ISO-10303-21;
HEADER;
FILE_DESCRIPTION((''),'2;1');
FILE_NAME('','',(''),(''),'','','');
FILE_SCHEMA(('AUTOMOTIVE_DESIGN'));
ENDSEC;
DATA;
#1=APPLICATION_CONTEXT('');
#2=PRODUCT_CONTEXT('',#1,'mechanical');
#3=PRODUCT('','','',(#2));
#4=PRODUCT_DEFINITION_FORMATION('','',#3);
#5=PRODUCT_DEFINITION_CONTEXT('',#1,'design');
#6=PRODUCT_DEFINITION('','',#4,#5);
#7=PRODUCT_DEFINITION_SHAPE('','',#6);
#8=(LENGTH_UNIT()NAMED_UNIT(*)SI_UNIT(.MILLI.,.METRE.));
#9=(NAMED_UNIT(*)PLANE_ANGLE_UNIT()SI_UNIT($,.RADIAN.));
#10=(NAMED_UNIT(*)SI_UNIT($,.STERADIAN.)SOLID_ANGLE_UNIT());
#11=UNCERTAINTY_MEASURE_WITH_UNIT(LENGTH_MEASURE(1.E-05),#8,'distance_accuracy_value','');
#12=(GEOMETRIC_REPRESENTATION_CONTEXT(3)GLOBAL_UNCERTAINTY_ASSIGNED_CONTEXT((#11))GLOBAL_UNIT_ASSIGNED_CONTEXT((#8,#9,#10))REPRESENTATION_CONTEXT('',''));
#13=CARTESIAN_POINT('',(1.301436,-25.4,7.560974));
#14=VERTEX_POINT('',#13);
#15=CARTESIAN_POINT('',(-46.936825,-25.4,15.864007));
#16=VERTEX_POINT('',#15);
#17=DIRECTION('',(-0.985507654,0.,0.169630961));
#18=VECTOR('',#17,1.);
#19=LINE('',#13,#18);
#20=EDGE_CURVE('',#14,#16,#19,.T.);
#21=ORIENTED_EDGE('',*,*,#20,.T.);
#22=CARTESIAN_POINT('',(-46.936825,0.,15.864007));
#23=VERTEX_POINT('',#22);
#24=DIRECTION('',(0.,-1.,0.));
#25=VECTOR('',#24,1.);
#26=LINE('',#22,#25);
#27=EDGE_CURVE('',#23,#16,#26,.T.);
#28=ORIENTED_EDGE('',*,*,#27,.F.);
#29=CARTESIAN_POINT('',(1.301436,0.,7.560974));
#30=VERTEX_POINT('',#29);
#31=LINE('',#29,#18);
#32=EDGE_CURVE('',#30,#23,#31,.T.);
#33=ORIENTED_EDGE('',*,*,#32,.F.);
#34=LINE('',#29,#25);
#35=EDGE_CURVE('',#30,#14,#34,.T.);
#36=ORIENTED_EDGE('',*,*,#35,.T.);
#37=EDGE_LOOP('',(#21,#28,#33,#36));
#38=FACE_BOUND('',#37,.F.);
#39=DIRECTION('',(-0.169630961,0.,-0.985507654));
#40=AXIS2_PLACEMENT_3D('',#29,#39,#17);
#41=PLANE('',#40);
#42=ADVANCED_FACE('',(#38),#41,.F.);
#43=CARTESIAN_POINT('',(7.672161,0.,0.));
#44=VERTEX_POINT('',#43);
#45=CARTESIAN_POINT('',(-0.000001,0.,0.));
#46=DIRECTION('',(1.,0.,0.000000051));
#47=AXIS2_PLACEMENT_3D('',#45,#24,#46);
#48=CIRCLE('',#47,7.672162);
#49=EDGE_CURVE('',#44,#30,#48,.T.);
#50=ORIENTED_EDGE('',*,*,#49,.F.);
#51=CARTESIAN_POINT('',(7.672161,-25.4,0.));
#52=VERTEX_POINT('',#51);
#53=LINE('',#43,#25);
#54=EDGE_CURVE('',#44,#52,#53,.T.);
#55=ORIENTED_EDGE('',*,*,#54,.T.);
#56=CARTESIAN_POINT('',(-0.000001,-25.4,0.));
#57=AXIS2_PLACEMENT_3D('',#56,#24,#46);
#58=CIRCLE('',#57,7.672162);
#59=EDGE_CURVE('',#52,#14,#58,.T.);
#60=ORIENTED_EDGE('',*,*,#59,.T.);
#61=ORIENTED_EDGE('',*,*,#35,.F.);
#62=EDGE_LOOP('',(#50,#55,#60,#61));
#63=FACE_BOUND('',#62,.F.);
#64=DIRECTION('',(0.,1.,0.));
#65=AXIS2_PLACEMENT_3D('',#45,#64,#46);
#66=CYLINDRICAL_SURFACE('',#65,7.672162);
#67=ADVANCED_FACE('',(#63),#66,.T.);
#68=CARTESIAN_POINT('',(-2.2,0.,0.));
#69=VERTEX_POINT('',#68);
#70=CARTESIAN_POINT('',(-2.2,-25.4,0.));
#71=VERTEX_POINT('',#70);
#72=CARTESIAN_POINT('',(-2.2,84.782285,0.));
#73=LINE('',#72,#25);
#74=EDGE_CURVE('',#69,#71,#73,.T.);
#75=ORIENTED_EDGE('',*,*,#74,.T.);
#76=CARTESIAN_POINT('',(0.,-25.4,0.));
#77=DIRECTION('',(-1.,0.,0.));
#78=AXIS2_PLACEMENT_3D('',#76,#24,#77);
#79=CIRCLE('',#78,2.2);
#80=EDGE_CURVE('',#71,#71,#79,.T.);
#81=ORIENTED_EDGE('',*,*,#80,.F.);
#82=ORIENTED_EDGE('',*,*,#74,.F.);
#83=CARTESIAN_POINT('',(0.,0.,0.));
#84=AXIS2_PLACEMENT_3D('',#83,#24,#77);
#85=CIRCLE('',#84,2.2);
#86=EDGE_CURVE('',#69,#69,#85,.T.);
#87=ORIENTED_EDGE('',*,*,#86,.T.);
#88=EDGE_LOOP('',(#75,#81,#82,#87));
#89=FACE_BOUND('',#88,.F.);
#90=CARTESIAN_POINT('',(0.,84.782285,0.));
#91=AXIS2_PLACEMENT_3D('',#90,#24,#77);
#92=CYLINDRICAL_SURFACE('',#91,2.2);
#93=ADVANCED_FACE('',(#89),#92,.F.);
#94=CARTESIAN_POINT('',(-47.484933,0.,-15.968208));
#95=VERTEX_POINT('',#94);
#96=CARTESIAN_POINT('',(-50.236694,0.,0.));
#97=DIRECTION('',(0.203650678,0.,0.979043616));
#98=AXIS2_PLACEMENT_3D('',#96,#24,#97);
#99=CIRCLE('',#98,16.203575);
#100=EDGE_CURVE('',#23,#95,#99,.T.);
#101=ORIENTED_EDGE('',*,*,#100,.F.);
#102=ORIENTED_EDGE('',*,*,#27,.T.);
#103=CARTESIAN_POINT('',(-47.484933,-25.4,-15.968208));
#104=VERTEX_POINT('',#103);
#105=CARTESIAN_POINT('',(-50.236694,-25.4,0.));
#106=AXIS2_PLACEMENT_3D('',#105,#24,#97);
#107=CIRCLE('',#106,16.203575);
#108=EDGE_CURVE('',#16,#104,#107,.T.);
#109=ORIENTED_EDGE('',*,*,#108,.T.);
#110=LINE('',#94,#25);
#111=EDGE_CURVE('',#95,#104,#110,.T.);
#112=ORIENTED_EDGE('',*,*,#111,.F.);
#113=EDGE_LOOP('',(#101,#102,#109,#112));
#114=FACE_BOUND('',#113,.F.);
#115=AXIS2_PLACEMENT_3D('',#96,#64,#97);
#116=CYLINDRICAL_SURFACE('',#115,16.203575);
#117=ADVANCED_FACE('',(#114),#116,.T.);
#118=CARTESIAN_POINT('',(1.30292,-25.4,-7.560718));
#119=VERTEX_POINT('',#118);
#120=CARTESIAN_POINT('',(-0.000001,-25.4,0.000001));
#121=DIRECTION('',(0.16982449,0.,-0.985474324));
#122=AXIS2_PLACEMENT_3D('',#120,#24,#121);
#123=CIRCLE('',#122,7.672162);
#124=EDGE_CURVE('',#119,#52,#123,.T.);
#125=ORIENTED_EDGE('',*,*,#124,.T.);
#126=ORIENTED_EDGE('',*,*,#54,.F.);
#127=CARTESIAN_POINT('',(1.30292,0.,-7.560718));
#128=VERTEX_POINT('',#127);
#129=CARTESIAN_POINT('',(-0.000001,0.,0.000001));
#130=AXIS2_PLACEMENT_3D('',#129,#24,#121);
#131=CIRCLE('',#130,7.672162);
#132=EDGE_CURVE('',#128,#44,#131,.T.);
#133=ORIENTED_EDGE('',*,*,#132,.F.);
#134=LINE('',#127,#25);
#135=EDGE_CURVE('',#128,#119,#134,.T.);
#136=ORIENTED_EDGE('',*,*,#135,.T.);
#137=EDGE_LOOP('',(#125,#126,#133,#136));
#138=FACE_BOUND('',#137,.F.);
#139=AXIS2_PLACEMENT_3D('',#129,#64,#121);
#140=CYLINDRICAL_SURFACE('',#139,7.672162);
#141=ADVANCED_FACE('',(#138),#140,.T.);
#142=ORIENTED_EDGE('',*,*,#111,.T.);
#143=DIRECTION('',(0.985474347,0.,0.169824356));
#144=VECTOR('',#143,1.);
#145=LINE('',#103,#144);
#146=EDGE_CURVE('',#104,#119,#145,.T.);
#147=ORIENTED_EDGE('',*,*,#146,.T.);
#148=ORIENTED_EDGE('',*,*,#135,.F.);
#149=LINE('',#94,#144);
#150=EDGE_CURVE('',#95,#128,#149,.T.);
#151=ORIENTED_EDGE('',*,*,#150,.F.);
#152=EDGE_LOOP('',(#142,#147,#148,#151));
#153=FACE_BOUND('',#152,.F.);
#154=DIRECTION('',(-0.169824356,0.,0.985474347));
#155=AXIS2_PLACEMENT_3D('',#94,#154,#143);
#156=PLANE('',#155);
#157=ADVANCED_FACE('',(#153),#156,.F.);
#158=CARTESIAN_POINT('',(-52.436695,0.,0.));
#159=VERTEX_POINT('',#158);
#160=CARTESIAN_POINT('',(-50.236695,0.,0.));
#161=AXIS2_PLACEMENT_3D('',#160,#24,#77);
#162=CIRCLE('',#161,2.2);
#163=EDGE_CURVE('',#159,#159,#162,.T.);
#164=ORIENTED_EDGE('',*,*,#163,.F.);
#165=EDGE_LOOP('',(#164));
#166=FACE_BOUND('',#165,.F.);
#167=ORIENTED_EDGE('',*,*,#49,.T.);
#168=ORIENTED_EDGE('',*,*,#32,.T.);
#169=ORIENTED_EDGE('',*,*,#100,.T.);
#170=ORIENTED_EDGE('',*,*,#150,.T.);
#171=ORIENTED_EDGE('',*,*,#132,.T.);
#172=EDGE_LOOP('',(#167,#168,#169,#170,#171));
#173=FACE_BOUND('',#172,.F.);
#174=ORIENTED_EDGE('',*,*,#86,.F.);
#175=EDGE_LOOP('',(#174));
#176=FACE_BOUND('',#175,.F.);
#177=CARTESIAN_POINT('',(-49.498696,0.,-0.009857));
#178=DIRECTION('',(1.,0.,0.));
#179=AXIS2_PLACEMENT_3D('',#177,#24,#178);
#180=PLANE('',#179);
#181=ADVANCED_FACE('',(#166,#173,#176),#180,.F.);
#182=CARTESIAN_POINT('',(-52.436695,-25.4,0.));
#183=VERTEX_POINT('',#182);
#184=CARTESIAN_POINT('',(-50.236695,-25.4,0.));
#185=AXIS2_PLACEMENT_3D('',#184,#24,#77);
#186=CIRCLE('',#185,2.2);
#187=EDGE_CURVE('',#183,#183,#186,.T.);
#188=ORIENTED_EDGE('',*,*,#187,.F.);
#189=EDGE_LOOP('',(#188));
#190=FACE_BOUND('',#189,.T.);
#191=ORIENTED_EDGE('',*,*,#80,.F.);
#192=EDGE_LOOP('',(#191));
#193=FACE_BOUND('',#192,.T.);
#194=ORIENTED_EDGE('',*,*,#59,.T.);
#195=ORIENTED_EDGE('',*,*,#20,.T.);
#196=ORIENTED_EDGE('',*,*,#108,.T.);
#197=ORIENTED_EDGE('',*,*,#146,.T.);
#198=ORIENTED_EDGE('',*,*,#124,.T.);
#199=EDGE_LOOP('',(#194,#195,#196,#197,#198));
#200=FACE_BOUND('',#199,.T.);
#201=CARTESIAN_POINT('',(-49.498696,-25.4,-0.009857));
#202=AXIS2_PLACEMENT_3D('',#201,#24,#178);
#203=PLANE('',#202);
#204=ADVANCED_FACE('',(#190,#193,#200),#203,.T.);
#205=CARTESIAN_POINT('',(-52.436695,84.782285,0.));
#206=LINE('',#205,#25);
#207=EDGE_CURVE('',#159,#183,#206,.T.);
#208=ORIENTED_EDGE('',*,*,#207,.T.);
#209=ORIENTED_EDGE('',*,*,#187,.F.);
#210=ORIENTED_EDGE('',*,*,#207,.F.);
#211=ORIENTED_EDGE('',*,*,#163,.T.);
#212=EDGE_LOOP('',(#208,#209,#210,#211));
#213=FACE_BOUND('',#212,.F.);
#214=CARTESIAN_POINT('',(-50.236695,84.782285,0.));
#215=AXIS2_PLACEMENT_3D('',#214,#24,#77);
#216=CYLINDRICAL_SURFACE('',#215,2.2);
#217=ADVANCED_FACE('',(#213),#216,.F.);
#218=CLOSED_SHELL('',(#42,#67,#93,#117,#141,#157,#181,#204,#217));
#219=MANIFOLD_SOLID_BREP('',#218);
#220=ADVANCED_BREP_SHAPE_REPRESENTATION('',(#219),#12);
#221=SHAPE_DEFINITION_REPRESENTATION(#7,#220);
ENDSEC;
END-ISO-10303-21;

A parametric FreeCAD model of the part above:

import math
import FreeCAD as App
import Part
import Sketcher

V = App.Vector

doc = App.newDocument("Part")
body = doc.addObject("PartDesign::Body", "Body")

# Sketch on XZ plane
sketch1 = body.newObject("Sketcher::SketchObject", "Sketch")
sketch1.AttachmentSupport = (doc.getObject("XZ_Plane"), [""])
sketch1.MapMode = "FlatFace"
sketch1.addGeometry(Part.LineSegment(V(1, 8, 0), V(-47, 16, 0)), False)
sketch1.addGeometry(Part.ArcOfCircle(Part.Circle(V(-50, 0, 0), V(0, 0, 1), 16), math.radians(78), math.radians(280)), False)
sketch1.addGeometry(Part.LineSegment(V(-47, -16, 0), V(1, -8, 0)), False)
sketch1.addGeometry(Part.ArcOfCircle(Part.Circle(V(0, 0, 0), V(0, 0, 1), 8), math.radians(-80), math.radians(0)), False)
sketch1.addGeometry(Part.ArcOfCircle(Part.Circle(V(0, 0, 0), V(0, 0, 1), 8), math.radians(0), math.radians(80)), False)
sketch1.addConstraint(Sketcher.Constraint("Coincident", 0, 2, 1, 1))
sketch1.addConstraint(Sketcher.Constraint("Tangent", 1, 2, 2, 1))
sketch1.addConstraint(Sketcher.Constraint("Tangent", 2, 2, 3, 1))
sketch1.addConstraint(Sketcher.Constraint("Tangent", 3, 2, 4, 1))
sketch1.addConstraint(Sketcher.Constraint("Tangent", 4, 2, 0, 1))
sketch1.addConstraint(Sketcher.Constraint("Coincident", 3, 3, -1, 1))
sketch1.addConstraint(Sketcher.Constraint("Equal", 3, 4))
sketch1.addConstraint(Sketcher.Constraint("PointOnObject", 1, 3, -1))
sketch1.addConstraint(Sketcher.Constraint("PointOnObject", 3, 2, -1))
sketch1.addConstraint(Sketcher.Constraint("Radius", 3, 7.672162))
sketch1.addConstraint(Sketcher.Constraint("Radius", 1, 16.203575))
sketch1.addConstraint(Sketcher.Constraint("DistanceX", -1, 1, 2, 2, 1.30292))
sketch1.addConstraint(Sketcher.Constraint("DistanceX", 1, 3, 0, 2, 3.299869))
pad1 = body.newObject("PartDesign::Pad", "Pad")
pad1.Profile = sketch1
pad1.Length = 25.4

# Sketch on XZ plane
sketch2 = body.newObject("Sketcher::SketchObject", "Sketch001")
sketch2.AttachmentSupport = (doc.getObject("XZ_Plane"), [""])
sketch2.MapMode = "FlatFace"
sketch2.addGeometry(Part.Circle(V(-50.2, 0, 0), V(0, 0, 1), 2.2), False)
sketch2.addGeometry(Part.Circle(V(0, 0, 0), V(0, 0, 1), 2.2), False)
sketch2.addConstraint(Sketcher.Constraint("Coincident", 1, 3, -1, 1))
sketch2.addConstraint(Sketcher.Constraint("Equal", 0, 1))
sketch2.addConstraint(Sketcher.Constraint("PointOnObject", 0, 3, -1))
sketch2.addConstraint(Sketcher.Constraint("Diameter", 0, 4.4))
sketch2.addConstraint(Sketcher.Constraint("DistanceX", 0, 3, -1, 1, 50.236695))
doc.recompute()
hole = body.newObject("PartDesign::Hole", "Hole")
hole.Profile = sketch2
hole.ThreadType = "None"
hole.Diameter = 4.4
hole.DepthType = "ThroughAll"
hole.Reversed = True

doc.recompute()
